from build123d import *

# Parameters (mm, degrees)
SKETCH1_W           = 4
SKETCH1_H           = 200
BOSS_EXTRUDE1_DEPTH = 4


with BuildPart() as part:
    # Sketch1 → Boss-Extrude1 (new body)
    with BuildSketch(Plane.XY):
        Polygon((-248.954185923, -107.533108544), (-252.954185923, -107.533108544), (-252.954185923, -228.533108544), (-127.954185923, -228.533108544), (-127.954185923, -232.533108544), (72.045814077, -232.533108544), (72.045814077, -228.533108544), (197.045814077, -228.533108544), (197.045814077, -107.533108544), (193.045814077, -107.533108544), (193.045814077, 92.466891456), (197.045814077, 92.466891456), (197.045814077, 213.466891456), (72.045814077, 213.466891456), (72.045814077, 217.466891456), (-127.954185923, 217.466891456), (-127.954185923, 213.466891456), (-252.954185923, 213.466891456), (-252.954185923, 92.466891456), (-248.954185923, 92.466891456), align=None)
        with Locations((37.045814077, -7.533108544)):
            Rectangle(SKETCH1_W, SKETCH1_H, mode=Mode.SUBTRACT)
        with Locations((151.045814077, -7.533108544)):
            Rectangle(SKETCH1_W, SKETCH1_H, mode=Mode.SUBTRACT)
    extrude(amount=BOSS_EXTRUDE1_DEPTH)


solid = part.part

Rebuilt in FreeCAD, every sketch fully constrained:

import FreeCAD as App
import Part
import Sketcher

V = App.Vector

doc = App.newDocument("Part")
body = doc.addObject("PartDesign::Body", "Body")

sketch1 = body.newObject("Sketcher::SketchObject", "Sketch")
sketch1.AttachmentSupport = (doc.getObject("XY_Plane"), [""])
sketch1.MapMode = "FlatFace"
sketch1.addGeometry(Part.LineSegment(V(-249, -107.5, 0), V(-253, -107.5, 0)), False)
sketch1.addGeometry(Part.LineSegment(V(-253, -107.5, 0), V(-253, -228.5, 0)), False)
sketch1.addGeometry(Part.LineSegment(V(-253, -228.5, 0), V(-128, -228.5, 0)), False)
sketch1.addGeometry(Part.LineSegment(V(-128, -228.5, 0), V(-128, -232.5, 0)), False)
sketch1.addGeometry(Part.LineSegment(V(-128, -232.5, 0), V(72, -232.5, 0)), False)
sketch1.addGeometry(Part.LineSegment(V(72, -232.5, 0), V(72, -228.5, 0)), False)
sketch1.addGeometry(Part.LineSegment(V(72, -228.5, 0), V(197, -228.5, 0)), False)
sketch1.addGeometry(Part.LineSegment(V(197, -228.5, 0), V(197, -107.5, 0)), False)
sketch1.addGeometry(Part.LineSegment(V(197, -107.5, 0), V(193, -107.5, 0)), False)
sketch1.addGeometry(Part.LineSegment(V(193, -107.5, 0), V(193, 92.5, 0)), False)
sketch1.addGeometry(Part.LineSegment(V(193, 92.5, 0), V(197, 92.5, 0)), False)
sketch1.addGeometry(Part.LineSegment(V(197, 92.5, 0), V(197, 213.5, 0)), False)
sketch1.addGeometry(Part.LineSegment(V(197, 213.5, 0), V(72, 213.5, 0)), False)
sketch1.addGeometry(Part.LineSegment(V(72, 213.5, 0), V(72, 217.5, 0)), False)
sketch1.addGeometry(Part.LineSegment(V(72, 217.5, 0), V(-128, 217.5, 0)), False)
sketch1.addGeometry(Part.LineSegment(V(-128, 217.5, 0), V(-128, 213.5, 0)), False)
sketch1.addGeometry(Part.LineSegment(V(-128, 213.5, 0), V(-253, 213.5, 0)), False)
sketch1.addGeometry(Part.LineSegment(V(-253, 213.5, 0), V(-253, 92.5, 0)), False)
sketch1.addGeometry(Part.LineSegment(V(-253, 92.5, 0), V(-249, 92.5, 0)), False)
sketch1.addGeometry(Part.LineSegment(V(-249, 92.5, 0), V(-249, -107.5, 0)), False)
sketch1.addGeometry(Part.LineSegment(V(39, -107.5, 0), V(35, -107.5, 0)), False)
sketch1.addGeometry(Part.LineSegment(V(35, -107.5, 0), V(35, 92.5, 0)), False)
sketch1.addGeometry(Part.LineSegment(V(35, 92.5, 0), V(39, 92.5, 0)), False)
sketch1.addGeometry(Part.LineSegment(V(39, 92.5, 0), V(39, -107.5, 0)), False)
sketch1.addGeometry(Part.LineSegment(V(153, -107.5, 0), V(149, -107.5, 0)), False)
sketch1.addGeometry(Part.LineSegment(V(149, -107.5, 0), V(149, 92.5, 0)), False)
sketch1.addGeometry(Part.LineSegment(V(149, 92.5, 0), V(153, 92.5, 0)), False)
sketch1.addGeometry(Part.LineSegment(V(153, 92.5, 0), V(153, -107.5, 0)), False)
sketch1.addConstraint(Sketcher.Constraint("Coincident", 0, 2, 1, 1))
sketch1.addConstraint(Sketcher.Constraint("Coincident", 1, 2, 2, 1))
sketch1.addConstraint(Sketcher.Constraint("Coincident", 2, 2, 3, 1))
sketch1.addConstraint(Sketcher.Constraint("Coincident", 3, 2, 4, 1))
sketch1.addConstraint(Sketcher.Constraint("Coincident", 4, 2, 5, 1))
sketch1.addConstraint(Sketcher.Constraint("Coincident", 5, 2, 6, 1))
sketch1.addConstraint(Sketcher.Constraint("Coincident", 6, 2, 7, 1))
sketch1.addConstraint(Sketcher.Constraint("Coincident", 7, 2, 8, 1))
sketch1.addConstraint(Sketcher.Constraint("Coincident", 8, 2, 9, 1))
sketch1.addConstraint(Sketcher.Constraint("Coincident", 9, 2, 10, 1))
sketch1.addConstraint(Sketcher.Constraint("Coincident", 10, 2, 11, 1))
sketch1.addConstraint(Sketcher.Constraint("Coincident", 11, 2, 12, 1))
sketch1.addConstraint(Sketcher.Constraint("Coincident", 12, 2, 13, 1))
sketch1.addConstraint(Sketcher.Constraint("Coincident", 13, 2, 14, 1))
sketch1.addConstraint(Sketcher.Constraint("Coincident", 14, 2, 15, 1))
sketch1.addConstraint(Sketcher.Constraint("Coincident", 15, 2, 16, 1))
sketch1.addConstraint(Sketcher.Constraint("Coincident", 16, 2, 17, 1))
sketch1.addConstraint(Sketcher.Constraint("Coincident", 17, 2, 18, 1))
sketch1.addConstraint(Sketcher.Constraint("Coincident", 18, 2, 19, 1))
sketch1.addConstraint(Sketcher.Constraint("Coincident", 19, 2, 0, 1))
sketch1.addConstraint(Sketcher.Constraint("Coincident", 20, 2, 21, 1))
sketch1.addConstraint(Sketcher.Constraint("Coincident", 21, 2, 22, 1))
sketch1.addConstraint(Sketcher.Constraint("Coincident", 22, 2, 23, 1))
sketch1.addConstraint(Sketcher.Constraint("Coincident", 23, 2, 20, 1))
sketch1.addConstraint(Sketcher.Constraint("Coincident", 24, 2, 25, 1))
sketch1.addConstraint(Sketcher.Constraint("Coincident", 25, 2, 26, 1))
sketch1.addConstraint(Sketcher.Constraint("Coincident", 26, 2, 27, 1))
sketch1.addConstraint(Sketcher.Constraint("Coincident", 27, 2, 24, 1))
sketch1.addConstraint(Sketcher.Constraint("Horizontal", 0))
sketch1.addConstraint(Sketcher.Constraint("Vertical", 1))
sketch1.addConstraint(Sketcher.Constraint("Horizontal", 2))
sketch1.addConstraint(Sketcher.Constraint("Vertical", 3))
sketch1.addConstraint(Sketcher.Constraint("Horizontal", 4))
sketch1.addConstraint(Sketcher.Constraint("Vertical", 5))
sketch1.addConstraint(Sketcher.Constraint("Horizontal", 6))
sketch1.addConstraint(Sketcher.Constraint("Vertical", 7))
sketch1.addConstraint(Sketcher.Constraint("Horizontal", 8))
sketch1.addConstraint(Sketcher.Constraint("Vertical", 9))
sketch1.addConstraint(Sketcher.Constraint("Horizontal", 10))
sketch1.addConstraint(Sketcher.Constraint("Vertical", 11))
sketch1.addConstraint(Sketcher.Constraint("Horizontal", 12))
sketch1.addConstraint(Sketcher.Constraint("Vertical", 13))
sketch1.addConstraint(Sketcher.Constraint("Horizontal", 14))
sketch1.addConstraint(Sketcher.Constraint("Vertical", 15))
sketch1.addConstraint(Sketcher.Constraint("Horizontal", 16))
sketch1.addConstraint(Sketcher.Constraint("Vertical", 17))
sketch1.addConstraint(Sketcher.Constraint("Horizontal", 18))
sketch1.addConstraint(Sketcher.Constraint("Vertical", 19))
sketch1.addConstraint(Sketcher.Constraint("Horizontal", 20))
sketch1.addConstraint(Sketcher.Constraint("Vertical", 21))
sketch1.addConstraint(Sketcher.Constraint("Horizontal", 22))
sketch1.addConstraint(Sketcher.Constraint("Vertical", 23))
sketch1.addConstraint(Sketcher.Constraint("Horizontal", 24))
sketch1.addConstraint(Sketcher.Constraint("Vertical", 25))
sketch1.addConstraint(Sketcher.Constraint("Horizontal", 26))
sketch1.addConstraint(Sketcher.Constraint("Vertical", 27))
sketch1.addConstraint(Sketcher.Constraint("Horizontal", 2, 2, 5, 2))
sketch1.addConstraint(Sketcher.Constraint("Horizontal", 0, 2, 7, 2))
sketch1.addConstraint(Sketcher.Constraint("Horizontal", 12, 2, 15, 2))
sketch1.addConstraint(Sketcher.Constraint("Horizontal", 10, 2, 17, 2))
sketch1.addConstraint(Sketcher.Constraint("Horizontal", 19, 2, 20, 2))
sketch1.addConstraint(Sketcher.Constraint("Horizontal", 18, 2, 21, 2))
sketch1.addConstraint(Sketcher.Constraint("Horizontal", 23, 2, 24, 2))
sketch1.addConstraint(Sketcher.Constraint("Horizontal", 22, 2, 25, 2))
sketch1.addConstraint(Sketcher.Constraint("Vertical", 7, 2, 10, 2))
sketch1.addConstraint(Sketcher.Constraint("Vertical", 5, 2, 12, 2))
sketch1.addConstraint(Sketcher.Constraint("Vertical", 3, 2, 14, 2))
sketch1.addConstraint(Sketcher.Constraint("Vertical", 1, 2, 16, 2))
sketch1.addConstraint(Sketcher.Constraint("Equal", 2, 6))
sketch1.addConstraint(Sketcher.Constraint("Equal", 0, 8))
sketch1.addConstraint(Sketcher.Constraint("Equal", 18, 20))
sketch1.addConstraint(Sketcher.Constraint("Equal", 22, 24))
sketch1.addConstraint(Sketcher.Constraint("Equal", 26, 3))
sketch1.addConstraint(Sketcher.Constraint("Equal", 14, 9))
sketch1.addConstraint(Sketcher.Constraint("Equal", 7, 11))
sketch1.addConstraint(Sketcher.Constraint("Equal", 5, 13))
sketch1.addConstraint(Sketcher.Constraint("DistanceX", 0, 2, 0, 1, 4.0))
sketch1.addConstraint(Sketcher.Constraint("DistanceX", 2, 1, 2, 2, 125.0))
sketch1.addConstraint(Sketcher.Constraint("DistanceX", 4, 1, 4, 2, 200.0))
sketch1.addConstraint(Sketcher.Constraint("DistanceY", 1, 2, 1, 1, 121.0))
sketch1.addConstraint(Sketcher.Constraint("DistanceX", 20, 2, 5, 2, 37.0))
sketch1.addConstraint(Sketcher.Constraint("DistanceX", 24, 2, 8, 2, 44.0))
sketch1.addConstraint(Sketcher.Constraint("DistanceY", 0, 2, -1, 1, 107.533109))
sketch1.addConstraint(Sketcher.Constraint("DistanceX", 0, 2, -1, 1, 252.954186))
pad1 = body.newObject("PartDesign::Pad", "Pad")
pad1.Profile = sketch1
pad1.Length = 4

doc.recompute()
